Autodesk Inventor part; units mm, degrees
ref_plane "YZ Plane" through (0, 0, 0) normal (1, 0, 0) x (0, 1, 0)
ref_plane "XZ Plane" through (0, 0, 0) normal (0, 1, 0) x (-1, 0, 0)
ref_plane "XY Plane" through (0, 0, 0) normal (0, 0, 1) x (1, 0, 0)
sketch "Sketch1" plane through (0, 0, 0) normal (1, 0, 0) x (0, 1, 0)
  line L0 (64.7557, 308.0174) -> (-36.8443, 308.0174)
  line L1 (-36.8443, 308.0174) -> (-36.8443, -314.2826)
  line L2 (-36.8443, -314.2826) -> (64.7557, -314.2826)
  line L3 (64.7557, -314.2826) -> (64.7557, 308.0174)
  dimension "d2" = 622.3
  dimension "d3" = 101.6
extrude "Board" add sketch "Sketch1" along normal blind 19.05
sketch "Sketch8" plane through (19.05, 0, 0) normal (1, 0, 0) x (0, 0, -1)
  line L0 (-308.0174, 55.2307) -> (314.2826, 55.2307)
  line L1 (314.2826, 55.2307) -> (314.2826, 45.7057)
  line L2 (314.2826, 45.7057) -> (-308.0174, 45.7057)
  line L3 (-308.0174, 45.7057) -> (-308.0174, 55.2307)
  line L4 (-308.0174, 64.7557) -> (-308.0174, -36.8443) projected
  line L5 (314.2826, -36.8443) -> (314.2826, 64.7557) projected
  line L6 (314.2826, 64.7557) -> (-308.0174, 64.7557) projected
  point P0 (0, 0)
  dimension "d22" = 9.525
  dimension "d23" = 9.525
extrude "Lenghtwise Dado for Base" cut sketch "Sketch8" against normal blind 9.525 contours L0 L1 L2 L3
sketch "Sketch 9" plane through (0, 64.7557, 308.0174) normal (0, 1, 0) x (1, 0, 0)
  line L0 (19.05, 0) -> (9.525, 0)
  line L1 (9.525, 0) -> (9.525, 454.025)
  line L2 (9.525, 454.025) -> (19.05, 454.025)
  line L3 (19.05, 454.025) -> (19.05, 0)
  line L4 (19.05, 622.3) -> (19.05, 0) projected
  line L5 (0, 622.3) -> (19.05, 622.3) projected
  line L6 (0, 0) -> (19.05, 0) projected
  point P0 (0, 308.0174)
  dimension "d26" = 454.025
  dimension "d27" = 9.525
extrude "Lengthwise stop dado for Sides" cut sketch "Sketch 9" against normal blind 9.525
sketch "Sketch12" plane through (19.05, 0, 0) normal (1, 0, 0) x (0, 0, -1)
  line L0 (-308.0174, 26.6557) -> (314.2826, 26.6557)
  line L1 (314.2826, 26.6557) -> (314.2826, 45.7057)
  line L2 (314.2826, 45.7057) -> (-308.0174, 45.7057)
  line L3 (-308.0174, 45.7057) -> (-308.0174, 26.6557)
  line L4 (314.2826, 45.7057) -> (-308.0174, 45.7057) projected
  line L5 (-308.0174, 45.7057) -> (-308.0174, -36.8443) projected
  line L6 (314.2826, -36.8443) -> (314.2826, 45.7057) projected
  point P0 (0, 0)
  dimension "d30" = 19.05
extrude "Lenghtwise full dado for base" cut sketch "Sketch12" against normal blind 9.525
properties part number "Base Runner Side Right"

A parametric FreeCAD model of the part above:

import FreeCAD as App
import Part
import Sketcher

V = App.Vector
Q = App.Units.Quantity

doc = App.newDocument("Part")
body = doc.addObject("PartDesign::Body", "Body")

# Sketch on YZ plane
sketch1 = body.newObject("Sketcher::SketchObject", "Sketch")
sketch1.AttachmentSupport = (doc.getObject("YZ_Plane"), [""])
sketch1.MapMode = "FlatFace"
sketch1.addGeometry(Part.LineSegment(V(65, -314, 0), V(65, 308, 0)), False)
sketch1.addGeometry(Part.LineSegment(V(65, 308, 0), V(-37, 308, 0)), False)
sketch1.addGeometry(Part.LineSegment(V(-37, 308, 0), V(-37, -314, 0)), False)
sketch1.addGeometry(Part.LineSegment(V(-37, -314, 0), V(65, -314, 0)), False)
sketch1.addConstraint(Sketcher.Constraint("Coincident", 0, 2, 1, 1))
sketch1.addConstraint(Sketcher.Constraint("Coincident", 1, 2, 2, 1))
sketch1.addConstraint(Sketcher.Constraint("Coincident", 2, 2, 3, 1))
sketch1.addConstraint(Sketcher.Constraint("Coincident", 3, 2, 0, 1))
sketch1.addConstraint(Sketcher.Constraint("Vertical", 0))
sketch1.addConstraint(Sketcher.Constraint("Horizontal", 1))
sketch1.addConstraint(Sketcher.Constraint("Vertical", 2))
sketch1.addConstraint(Sketcher.Constraint("Horizontal", 3))
sketch1.addConstraint(Sketcher.Constraint("DistanceX", 1, 2, 1, 1, Q("4 in")))
sketch1.addConstraint(Sketcher.Constraint("DistanceY", 0, 1, 0, 2, Q("24.5 in")))
sketch1.addConstraint(Sketcher.Constraint("DistanceX", -1, 1, 0, 2, 64.7557))
sketch1.addConstraint(Sketcher.Constraint("DistanceY", -1, 1, 0, 2, 308.0174))
pad1 = body.newObject("PartDesign::Pad", "Pad")
pad1.Profile = sketch1
pad1.Length = Q("0.75 in")

# Sketch on YZ plane
sketch2 = body.newObject("Sketcher::SketchObject", "Sketch001")
sketch2.AttachmentSupport = (doc.getObject("YZ_Plane"), [""])
sketch2.MapMode = "FlatFace"
sketch2.AttachmentOffset = App.Placement(V(0, 0, 0.75 * 25.4), App.Rotation())
sketch2.addGeometry(Part.LineSegment(V(55, -314, 0), V(55, 308, 0)), False)
sketch2.addGeometry(Part.LineSegment(V(55, 308, 0), V(46, 308, 0)), False)
sketch2.addGeometry(Part.LineSegment(V(46, 308, 0), V(46, -314, 0)), False)
sketch2.addGeometry(Part.LineSegment(V(46, -314, 0), V(55, -314, 0)), False)
sketch2.addConstraint(Sketcher.Constraint("Coincident", 0, 2, 1, 1))
sketch2.addConstraint(Sketcher.Constraint("Coincident", 1, 2, 2, 1))
sketch2.addConstraint(Sketcher.Constraint("Coincident", 2, 2, 3, 1))
sketch2.addConstraint(Sketcher.Constraint("Coincident", 3, 2, 0, 1))
sketch2.addConstraint(Sketcher.Constraint("Vertical", 0))
sketch2.addConstraint(Sketcher.Constraint("Horizontal", 1))
sketch2.addConstraint(Sketcher.Constraint("Vertical", 2))
sketch2.addConstraint(Sketcher.Constraint("Horizontal", 3))
sketch2.addConstraint(Sketcher.Constraint("DistanceX", 1, 2, 1, 1, Q("0.375 in")))
sketch2.addConstraint(Sketcher.Constraint("DistanceY", 0, 1, 0, 2, Q("24.5 in")))
sketch2.addConstraint(Sketcher.Constraint("DistanceX", -1, 1, 0, 2, 55.2307))
sketch2.addConstraint(Sketcher.Constraint("DistanceY", -1, 1, 0, 2, 308.0174))
pocket1 = body.newObject("PartDesign::Pocket", "Pocket")
pocket1.Profile = sketch2
pocket1.Length = Q("0.375 in")

# Sketch on XZ plane
sketch3 = body.newObject("Sketcher::SketchObject", "Sketch002")
sketch3.AttachmentSupport = (doc.getObject("XZ_Plane"), [""])
sketch3.MapMode = "FlatFace"
sketch3.AttachmentOffset = App.Placement(V(0, 0, -64.7557), App.Rotation())
sketch3.addGeometry(Part.LineSegment(V(10, 308, 0), V(19, 308, 0)), False)
sketch3.addGeometry(Part.LineSegment(V(19, 308, 0), V(19, -146, 0)), False)
sketch3.addGeometry(Part.LineSegment(V(19, -146, 0), V(10, -146, 0)), False)
sketch3.addGeometry(Part.LineSegment(V(10, -146, 0), V(10, 308, 0)), False)
sketch3.addConstraint(Sketcher.Constraint("Coincident", 0, 2, 1, 1))
sketch3.addConstraint(Sketcher.Constraint("Coincident", 1, 2, 2, 1))
sketch3.addConstraint(Sketcher.Constraint("Coincident", 2, 2, 3, 1))
sketch3.addConstraint(Sketcher.Constraint("Coincident", 3, 2, 0, 1))
sketch3.addConstraint(Sketcher.Constraint("Horizontal", 0))
sketch3.addConstraint(Sketcher.Constraint("Vertical", 1))
sketch3.addConstraint(Sketcher.Constraint("Horizontal", 2))
sketch3.addConstraint(Sketcher.Constraint("Vertical", 3))
sketch3.addConstraint(Sketcher.Constraint("DistanceX", 0, 1, 0, 2, Q("0.375 in")))
sketch3.addConstraint(Sketcher.Constraint("DistanceY", 1, 2, 1, 1, Q("17.875 in")))
sketch3.addConstraint(Sketcher.Constraint("DistanceX", -1, 1, 2, 2, Q("0.375 in")))
sketch3.addConstraint(Sketcher.Constraint("DistanceY", -1, 1, 0, 2, 308.0174))
pocket2 = body.newObject("PartDesign::Pocket", "Pocket001")
pocket2.Profile = sketch3
pocket2.Length = Q("0.375 in")
pocket2.Reversed = True

# Sketch on YZ plane
sketch4 = body.newObject("Sketcher::SketchObject", "Sketch003")
sketch4.AttachmentSupport = (doc.getObject("YZ_Plane"), [""])
sketch4.MapMode = "FlatFace"
sketch4.AttachmentOffset = App.Placement(V(0, 0, 0.75 * 25.4), App.Rotation())
sketch4.addGeometry(Part.LineSegment(V(46, 308, 0), V(27, 308, 0)), False)
sketch4.addGeometry(Part.LineSegment(V(27, 308, 0), V(27, -314, 0)), False)
sketch4.addGeometry(Part.LineSegment(V(27, -314, 0), V(46, -314, 0)), False)
sketch4.addGeometry(Part.LineSegment(V(46, -314, 0), V(46, 308, 0)), False)
sketch4.addConstraint(Sketcher.Constraint("Coincident", 0, 2, 1, 1))
sketch4.addConstraint(Sketcher.Constraint("Coincident", 1, 2, 2, 1))
sketch4.addConstraint(Sketcher.Constraint("Coincident", 2, 2, 3, 1))
sketch4.addConstraint(Sketcher.Constraint("Coincident", 3, 2, 0, 1))
sketch4.addConstraint(Sketcher.Constraint("Horizontal", 0))
sketch4.addConstraint(Sketcher.Constraint("Vertical", 1))
sketch4.addConstraint(Sketcher.Constraint("Horizontal", 2))
sketch4.addConstraint(Sketcher.Constraint("Vertical", 3))
sketch4.addConstraint(Sketcher.Constraint("DistanceX", 0, 2, 0, 1, Q("0.75 in")))
sketch4.addConstraint(Sketcher.Constraint("DistanceY", 1, 2, 1, 1, Q("24.5 in")))
sketch4.addConstraint(Sketcher.Constraint("DistanceX", -1, 1, 0, 2, 26.6557))
sketch4.addConstraint(Sketcher.Constraint("DistanceY", -1, 1, 0, 2, 308.0174))
pocket3 = body.newObject("PartDesign::Pocket", "Pocket002")
pocket3.Profile = sketch4
pocket3.Length = Q("0.375 in")

doc.recompute()
